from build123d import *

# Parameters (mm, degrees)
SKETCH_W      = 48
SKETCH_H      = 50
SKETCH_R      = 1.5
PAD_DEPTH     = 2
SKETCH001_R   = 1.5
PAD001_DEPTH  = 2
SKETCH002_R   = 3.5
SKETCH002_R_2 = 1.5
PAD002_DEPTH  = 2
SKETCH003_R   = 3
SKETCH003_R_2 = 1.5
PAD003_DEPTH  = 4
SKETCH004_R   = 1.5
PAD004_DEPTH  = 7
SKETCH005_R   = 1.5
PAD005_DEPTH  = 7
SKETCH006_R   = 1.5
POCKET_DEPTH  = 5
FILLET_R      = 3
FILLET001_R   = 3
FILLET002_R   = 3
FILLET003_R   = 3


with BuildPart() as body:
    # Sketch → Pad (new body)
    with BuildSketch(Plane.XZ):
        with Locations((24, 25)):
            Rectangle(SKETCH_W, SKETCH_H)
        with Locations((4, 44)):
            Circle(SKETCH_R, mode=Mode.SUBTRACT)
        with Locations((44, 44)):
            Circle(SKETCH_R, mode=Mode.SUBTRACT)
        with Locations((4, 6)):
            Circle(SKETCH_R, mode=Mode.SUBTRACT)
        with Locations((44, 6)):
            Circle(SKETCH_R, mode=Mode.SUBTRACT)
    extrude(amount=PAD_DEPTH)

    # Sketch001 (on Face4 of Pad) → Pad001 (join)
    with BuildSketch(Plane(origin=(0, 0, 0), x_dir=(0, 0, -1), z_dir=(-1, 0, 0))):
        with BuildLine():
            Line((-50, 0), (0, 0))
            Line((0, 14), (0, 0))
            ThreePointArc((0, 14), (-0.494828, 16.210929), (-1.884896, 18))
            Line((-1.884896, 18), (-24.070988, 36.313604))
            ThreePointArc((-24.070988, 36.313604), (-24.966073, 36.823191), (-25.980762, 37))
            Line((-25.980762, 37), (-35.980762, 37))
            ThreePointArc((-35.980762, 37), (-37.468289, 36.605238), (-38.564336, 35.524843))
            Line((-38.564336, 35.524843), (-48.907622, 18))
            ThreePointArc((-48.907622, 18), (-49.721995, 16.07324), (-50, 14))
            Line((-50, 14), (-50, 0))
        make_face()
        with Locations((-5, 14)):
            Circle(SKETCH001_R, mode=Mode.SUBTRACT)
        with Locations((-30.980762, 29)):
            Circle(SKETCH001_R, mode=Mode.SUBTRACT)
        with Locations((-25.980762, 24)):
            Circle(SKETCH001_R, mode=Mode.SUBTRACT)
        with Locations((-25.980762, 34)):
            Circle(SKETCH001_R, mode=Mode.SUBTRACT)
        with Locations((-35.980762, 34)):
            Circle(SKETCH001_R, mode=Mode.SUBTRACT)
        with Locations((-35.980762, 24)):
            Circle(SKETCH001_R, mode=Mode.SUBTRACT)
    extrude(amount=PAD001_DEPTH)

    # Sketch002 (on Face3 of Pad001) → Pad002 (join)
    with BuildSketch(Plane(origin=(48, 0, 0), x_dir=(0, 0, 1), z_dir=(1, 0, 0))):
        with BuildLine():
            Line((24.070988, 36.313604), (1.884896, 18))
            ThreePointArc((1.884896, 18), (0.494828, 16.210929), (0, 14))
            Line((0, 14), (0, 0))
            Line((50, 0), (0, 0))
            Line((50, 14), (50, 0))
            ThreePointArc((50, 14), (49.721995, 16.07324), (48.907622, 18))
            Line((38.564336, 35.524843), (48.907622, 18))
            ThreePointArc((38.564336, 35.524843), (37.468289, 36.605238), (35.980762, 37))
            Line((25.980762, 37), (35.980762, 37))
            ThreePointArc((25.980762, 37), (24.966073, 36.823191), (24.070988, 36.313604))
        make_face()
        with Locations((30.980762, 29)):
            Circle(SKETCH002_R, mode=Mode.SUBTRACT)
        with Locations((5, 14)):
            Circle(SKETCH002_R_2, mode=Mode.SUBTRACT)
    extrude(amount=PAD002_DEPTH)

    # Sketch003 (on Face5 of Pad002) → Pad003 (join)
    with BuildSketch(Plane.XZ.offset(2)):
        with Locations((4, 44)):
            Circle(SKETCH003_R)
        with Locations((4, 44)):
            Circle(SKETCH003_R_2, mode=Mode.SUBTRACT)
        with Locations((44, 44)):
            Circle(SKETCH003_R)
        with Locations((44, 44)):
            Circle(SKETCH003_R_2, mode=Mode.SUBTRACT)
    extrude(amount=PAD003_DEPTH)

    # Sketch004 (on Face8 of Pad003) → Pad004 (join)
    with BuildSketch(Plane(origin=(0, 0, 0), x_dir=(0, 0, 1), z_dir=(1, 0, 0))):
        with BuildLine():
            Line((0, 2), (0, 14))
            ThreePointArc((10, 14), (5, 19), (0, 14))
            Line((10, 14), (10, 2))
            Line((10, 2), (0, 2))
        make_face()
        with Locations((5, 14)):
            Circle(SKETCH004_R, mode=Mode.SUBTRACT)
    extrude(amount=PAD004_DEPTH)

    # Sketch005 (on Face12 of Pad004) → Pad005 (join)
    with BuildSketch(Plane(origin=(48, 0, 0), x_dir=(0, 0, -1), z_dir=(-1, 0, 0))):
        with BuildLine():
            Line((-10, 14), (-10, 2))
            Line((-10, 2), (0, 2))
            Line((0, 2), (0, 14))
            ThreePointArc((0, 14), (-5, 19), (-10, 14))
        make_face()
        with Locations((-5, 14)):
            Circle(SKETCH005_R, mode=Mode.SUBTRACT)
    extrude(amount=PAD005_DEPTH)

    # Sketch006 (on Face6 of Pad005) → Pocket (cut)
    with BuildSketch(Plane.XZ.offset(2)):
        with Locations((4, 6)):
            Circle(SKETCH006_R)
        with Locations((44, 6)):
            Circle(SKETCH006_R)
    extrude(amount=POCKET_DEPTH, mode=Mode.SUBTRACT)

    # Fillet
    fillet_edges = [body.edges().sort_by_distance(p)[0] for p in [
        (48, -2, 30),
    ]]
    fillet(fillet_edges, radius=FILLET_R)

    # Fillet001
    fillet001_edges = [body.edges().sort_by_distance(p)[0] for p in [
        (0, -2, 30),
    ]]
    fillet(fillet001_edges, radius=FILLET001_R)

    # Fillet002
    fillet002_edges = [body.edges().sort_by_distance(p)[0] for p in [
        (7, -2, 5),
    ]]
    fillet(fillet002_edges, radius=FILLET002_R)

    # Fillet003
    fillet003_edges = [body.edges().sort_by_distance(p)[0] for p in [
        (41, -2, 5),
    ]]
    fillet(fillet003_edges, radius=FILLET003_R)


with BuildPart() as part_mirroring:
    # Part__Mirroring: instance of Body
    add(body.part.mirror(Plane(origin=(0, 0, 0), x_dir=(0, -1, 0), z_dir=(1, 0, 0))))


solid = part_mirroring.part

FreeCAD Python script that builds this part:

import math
import FreeCAD as App
import Part
import Sketcher

V = App.Vector
Q = App.Units.Quantity


def edges_at(feature, points):
    """Names of the edges that pass closest to the given points."""
    edges = feature.Shape.Edges
    near = lambda p: min(range(len(edges)), key=lambda i: edges[i].distToShape(Part.Vertex(*p))[0])
    return sorted({f"Edge{near(p) + 1}" for p in points})


def add_polygon(sketch, points):
    """Adds a closed chain of lines whose ends are joined by coincident constraints."""
    first, n = sketch.GeometryCount, len(points)
    for a, b in zip(points, points[1:] + points[:1]):
        sketch.addGeometry(Part.LineSegment(App.Vector(*a, 0), App.Vector(*b, 0)), False)
    for i in range(n):
        sketch.addConstraint(Sketcher.Constraint("Coincident", first + i, 2, first + (i + 1) % n, 1))

doc = App.newDocument("Part")
params = doc.addObject("Spreadsheet::Sheet", "Params")
for row, (alias, value) in enumerate([
    ("sketch1_diameter", "3 mm"),
    ("sketch1_width", "48 mm"),
    ("sketch1_height", "50 mm"),
    ("pad1_length", "2 mm"),
    ("sketch2_diameter", "3 mm"),
    ("sketch2_radius", "2.999999 mm"),
    ("sketch2_width", "14 mm"),
    ("sketch2_height", "50 mm"),
    ("sketch2_height2", "10 mm"),
    ("pad2_length", "2 mm"),
    ("sketch3_diameter", "3 mm"),
    ("sketch3_diameter2", "7 mm"),
    ("sketch3_radius", "2.999999 mm"),
    ("sketch3_width", "14 mm"),
    ("sketch3_height", "50 mm"),
    ("pad3_length", "2 mm"),
    ("sketch4_diameter", "6 mm"),
    ("sketch4_diameter2", "3 mm"),
    ("pad4_length", "4 mm"),
    ("sketch5_diameter", "3 mm"),
    ("sketch5_radius", "5 mm"),
    ("sketch5_width", "12 mm"),
    ("pad5_length", "7 mm"),
    ("sketch6_diameter", "3 mm"),
    ("sketch6_radius", "5 mm"),
    ("sketch6_width", "12 mm"),
    ("pad6_length", "7 mm"),
    ("sketch7_diameter", "3 mm"),
    ("pocket1_length", "5 mm"),
    ("fillet_radius", "3 mm"),
    ("fillet2_radius", "3 mm"),
    ("fillet3_radius", "3 mm"),
    ("fillet4_radius", "3 mm"),
], start=1):
    params.set(f"A{row}", alias)
    params.set(f"B{row}", "=" + value)
    params.setAlias(f"B{row}", alias)

body = doc.addObject("PartDesign::Body", "Body")

# Sketch on XZ plane
sketch1 = body.newObject("Sketcher::SketchObject", "Sketch")
sketch1.AttachmentSupport = (doc.getObject("XZ_Plane"), [""])
sketch1.MapMode = "FlatFace"
add_polygon(sketch1, [(0, 50), (0, 0), (48, 0), (48, 50)])  # lines 0-3
sketch1.addGeometry(Part.Circle(V(4, 6, 0), V(0, 0, 1), 1.5), False)  # 4
sketch1.addGeometry(Part.Circle(V(44, 6, 0), V(0, 0, 1), 1.5), False)  # 5
sketch1.addGeometry(Part.Circle(V(4, 44, 0), V(0, 0, 1), 1.5), False)  # 6
sketch1.addGeometry(Part.Circle(V(44, 44, 0), V(0, 0, 1), 1.5), False)  # 7
sketch1.addConstraint(Sketcher.Constraint("Vertical", 0))
sketch1.addConstraint(Sketcher.Constraint("Horizontal", 1))
sketch1.addConstraint(Sketcher.Constraint("Vertical", 2))
sketch1.addConstraint(Sketcher.Constraint("Horizontal", 3))
sketch1.addConstraint(Sketcher.Constraint("Coincident", 0, 2, -1, 1))
sketch1.addConstraint(Sketcher.Constraint("Equal", 4, 5))
sketch1.addConstraint(Sketcher.Constraint("Equal", 5, 6))
sketch1.addConstraint(Sketcher.Constraint("Equal", 6, 7))
sketch1.addConstraint(Sketcher.Constraint("Horizontal", 4, 3, 5, 3))
sketch1.addConstraint(Sketcher.Constraint("Horizontal", 6, 3, 7, 3))
sketch1.addConstraint(Sketcher.Constraint("Vertical", 4, 3, 6, 3))
sketch1.addConstraint(Sketcher.Constraint("Vertical", 5, 3, 7, 3))
sketch1.addConstraint(Sketcher.Constraint("Diameter", 4, Q("3 mm")))
sketch1.addConstraint(Sketcher.Constraint("DistanceX", 1, 1, 1, 2, Q("48 mm")))
sketch1.addConstraint(Sketcher.Constraint("DistanceY", 0, 2, 0, 1, Q("50 mm")))
sketch1.addConstraint(Sketcher.Constraint("DistanceX", -1, 1, 4, 3, Q("4 mm")))
sketch1.addConstraint(Sketcher.Constraint("DistanceY", -1, 1, 4, 3, Q("6 mm")))
sketch1.addConstraint(Sketcher.Constraint("DistanceX", -1, 1, 5, 3, Q("44 mm")))
sketch1.addConstraint(Sketcher.Constraint("DistanceY", -1, 1, 6, 3, Q("44 mm")))
sketch1.setExpression("Constraints[16]", "Params.sketch1_diameter")
sketch1.setExpression("Constraints[17]", "Params.sketch1_width")
sketch1.setExpression("Constraints[18]", "Params.sketch1_height")
pad1 = body.newObject("PartDesign::Pad", "Pad")
pad1.Profile = sketch1
pad1.setExpression("Length", "Params.pad1_length")

# Sketch on YZ plane
sketch2 = body.newObject("Sketcher::SketchObject", "Sketch001")
sketch2.AttachmentSupport = (doc.getObject("YZ_Plane"), [""])
sketch2.MapMode = "FlatFace"
sketch2.addGeometry(Part.LineSegment(V(0, 50, 0), V(0, 0, 0)), False)
sketch2.addGeometry(Part.LineSegment(V(0, 0, 0), V(-14, 0, 0)), False)
sketch2.addGeometry(Part.ArcOfCircle(Part.Circle(V(-14, 5.2, 0), V(0, 0, 1), 5.2), math.radians(-140), math.radians(-90)), False)
sketch2.addGeometry(Part.LineSegment(V(-18, 1.9, 0), V(-36.3, 24.1, 0)), False)
sketch2.addGeometry(Part.ArcOfCircle(Part.Circle(V(-34, 26, 0), V(0, 0, 1), 3), math.radians(180), math.radians(220)), False)
sketch2.addGeometry(Part.LineSegment(V(-37, 26, 0), V(-37, 36, 0)), False)
sketch2.addGeometry(Part.ArcOfCircle(Part.Circle(V(-34, 36, 0), V(0, 0, 1), 3), math.radians(121), math.radians(180)), False)
sketch2.addGeometry(Part.LineSegment(V(-35.5, 38.6, 0), V(-18, 48.9, 0)), False)
sketch2.addGeometry(Part.ArcOfCircle(Part.Circle(V(-14, 42.1, 0), V(0, 0, 1), 7.9), math.radians(90), math.radians(121)), False)
sketch2.addGeometry(Part.LineSegment(V(-14, 50, 0), V(0, 50, 0)), False)
sketch2.addGeometry(Part.Circle(V(-14, 5, 0), V(0, 0, 1), 1.5), False)
sketch2.addGeometry(Part.Circle(V(-24, 36, 0), V(0, 0, 1), 1.5), False)
sketch2.addGeometry(Part.Circle(V(-29, 31, 0), V(0, 0, 1), 1.5), False)
sketch2.addGeometry(Part.Circle(V(-24, 26, 0), V(0, 0, 1), 1.5), False)
sketch2.addGeometry(Part.Circle(V(-34, 36, 0), V(0, 0, 1), 1.5), False)
sketch2.addGeometry(Part.Circle(V(-34, 26, 0), V(0, 0, 1), 1.5), False)
sketch2.addConstraint(Sketcher.Constraint("Coincident", 0, 2, 1, 1))
sketch2.addConstraint(Sketcher.Constraint("Tangent", 1, 2, 2, 2))
sketch2.addConstraint(Sketcher.Constraint("Tangent", 2, 1, 3, 1))
sketch2.addConstraint(Sketcher.Constraint("Tangent", 3, 2, 4, 2))
sketch2.addConstraint(Sketcher.Constraint("Tangent", 4, 1, 5, 1))
sketch2.addConstraint(Sketcher.Constraint("Tangent", 5, 2, 6, 2))
sketch2.addConstraint(Sketcher.Constraint("Tangent", 6, 1, 7, 1))
sketch2.addConstraint(Sketcher.Constraint("Tangent", 7, 2, 8, 2))
sketch2.addConstraint(Sketcher.Constraint("Tangent", 8, 1, 9, 1))
sketch2.addConstraint(Sketcher.Constraint("Coincident", 9, 2, 0, 1))
sketch2.addConstraint(Sketcher.Constraint("Vertical", 0))
sketch2.addConstraint(Sketcher.Constraint("Horizontal", 1))
sketch2.addConstraint(Sketcher.Constraint("Vertical", 5))
sketch2.addConstraint(Sketcher.Constraint("Horizontal", 9))
sketch2.addConstraint(Sketcher.Constraint("Coincident", 0, 2, -1, 1))
sketch2.addConstraint(Sketcher.Constraint("Coincident", 14, 3, 6, 3))
sketch2.addConstraint(Sketcher.Constraint("Coincident", 15, 3, 4, 3))
sketch2.addConstraint(Sketcher.Constraint("Equal", 4, 6))
sketch2.addConstraint(Sketcher.Constraint("Equal", 10, 11))
sketch2.addConstraint(Sketcher.Constraint("Equal", 11, 12))
sketch2.addConstraint(Sketcher.Constraint("Equal", 12, 13))
sketch2.addConstraint(Sketcher.Constraint("Equal", 13, 14))
sketch2.addConstraint(Sketcher.Constraint("Equal", 14, 15))
sketch2.addConstraint(Sketcher.Constraint("Horizontal", 6, 3, 11, 3))
sketch2.addConstraint(Sketcher.Constraint("Horizontal", 4, 3, 13, 3))
sketch2.addConstraint(Sketcher.Constraint("Vertical", 2, 3, 8, 3))
sketch2.addConstraint(Sketcher.Constraint("Vertical", 8, 3, 10, 3))
sketch2.addConstraint(Sketcher.Constraint("Vertical", 11, 3, 13, 3))
sketch2.addConstraint(Sketcher.Constraint("Vertical", 2, 1, 7, 2))
sketch2.addConstraint(Sketcher.Constraint("Diameter", 10, Q("3 mm")))
sketch2.addConstraint(Sketcher.Constraint("Radius", 6, Q("2.999999 mm")))
sketch2.addConstraint(Sketcher.Constraint("DistanceX", 1, 2, 1, 1, Q("14 mm")))
sketch2.addConstraint(Sketcher.Constraint("DistanceY", 0, 2, 0, 1, Q("50 mm")))
sketch2.addConstraint(Sketcher.Constraint("DistanceY", 5, 1, 5, 2, Q("10 mm")))
sketch2.addConstraint(Sketcher.Constraint("DistanceX", 6, 3, -1, 1, Q("34.000001 mm")))
sketch2.addConstraint(Sketcher.Constraint("DistanceY", -1, 1, 10, 3, Q("5 mm")))
sketch2.addConstraint(Sketcher.Constraint("DistanceX", 11, 3, -1, 1, Q("24 mm")))
sketch2.addConstraint(Sketcher.Constraint("DistanceX", 12, 3, -1, 1, Q("29 mm")))
sketch2.addConstraint(Sketcher.Constraint("DistanceX", 2, 1, -1, 1, Q("18 mm")))
sketch2.addConstraint(Sketcher.Constraint("DistanceY", 12, 3, 11, 3, Q("5 mm")))
sketch2.addConstraint(Sketcher.Constraint("Radius", 8, Q("7.86966 mm")))
sketch2.setExpression("Constraints[29]", "Params.sketch2_diameter")
sketch2.setExpression("Constraints[30]", "Params.sketch2_radius")
sketch2.setExpression("Constraints[31]", "Params.sketch2_width")
sketch2.setExpression("Constraints[32]", "Params.sketch2_height")
sketch2.setExpression("Constraints[33]", "Params.sketch2_height2")
pad2 = body.newObject("PartDesign::Pad", "Pad001")
pad2.Profile = sketch2
pad2.setExpression("Length", "Params.pad2_length")
pad2.Reversed = True

# Sketch on YZ plane
sketch3 = body.newObject("Sketcher::SketchObject", "Sketch002")
sketch3.AttachmentSupport = (doc.getObject("YZ_Plane"), [""])
sketch3.MapMode = "FlatFace"
sketch3.AttachmentOffset = App.Placement(V(0, 0, 48), App.Rotation())
sketch3.addGeometry(Part.LineSegment(V(-36.3, 24.1, 0), V(-18, 1.9, 0)), False)
sketch3.addGeometry(Part.ArcOfCircle(Part.Circle(V(-14, 5.2, 0), V(0, 0, 1), 5.2), math.radians(-140), math.radians(-90)), False)
sketch3.addGeometry(Part.LineSegment(V(-14, 0, 0), V(0, 0, 0)), False)
sketch3.addGeometry(Part.LineSegment(V(0, 0, 0), V(0, 50, 0)), False)
sketch3.addGeometry(Part.LineSegment(V(0, 50, 0), V(-14, 50, 0)), False)
sketch3.addGeometry(Part.ArcOfCircle(Part.Circle(V(-14, 42.1, 0), V(0, 0, 1), 7.9), math.radians(90), math.radians(121)), False)
sketch3.addGeometry(Part.LineSegment(V(-18, 48.9, 0), V(-35.5, 38.6, 0)), False)
sketch3.addGeometry(Part.ArcOfCircle(Part.Circle(V(-34, 36, 0), V(0, 0, 1), 3), math.radians(121), math.radians(180)), False)
sketch3.addGeometry(Part.LineSegment(V(-37, 36, 0), V(-37, 26, 0)), False)
sketch3.addGeometry(Part.ArcOfCircle(Part.Circle(V(-34, 26, 0), V(0, 0, 1), 3), math.radians(180), math.radians(220)), False)
sketch3.addGeometry(Part.Circle(V(-14, 5, 0), V(0, 0, 1), 1.5), False)
sketch3.addGeometry(Part.Circle(V(-29, 31, 0), V(0, 0, 1), 3.5), False)
sketch3.addConstraint(Sketcher.Constraint("Tangent", 0, 2, 1, 1))
sketch3.addConstraint(Sketcher.Constraint("Tangent", 1, 2, 2, 1))
sketch3.addConstraint(Sketcher.Constraint("Coincident", 2, 2, 3, 1))
sketch3.addConstraint(Sketcher.Constraint("Coincident", 3, 2, 4, 1))
sketch3.addConstraint(Sketcher.Constraint("Tangent", 4, 2, 5, 1))
sketch3.addConstraint(Sketcher.Constraint("Tangent", 5, 2, 6, 1))
sketch3.addConstraint(Sketcher.Constraint("Tangent", 6, 2, 7, 1))
sketch3.addConstraint(Sketcher.Constraint("Tangent", 7, 2, 8, 1))
sketch3.addConstraint(Sketcher.Constraint("Tangent", 8, 2, 9, 1))
sketch3.addConstraint(Sketcher.Constraint("Tangent", 9, 2, 0, 1))
sketch3.addConstraint(Sketcher.Constraint("Horizontal", 2))
sketch3.addConstraint(Sketcher.Constraint("Vertical", 3))
sketch3.addConstraint(Sketcher.Constraint("Horizontal", 4))
sketch3.addConstraint(Sketcher.Constraint("Vertical", 8))
sketch3.addConstraint(Sketcher.Constraint("Coincident", 2, 2, -1, 1))
sketch3.addConstraint(Sketcher.Constraint("Equal", 7, 9))
sketch3.addConstraint(Sketcher.Constraint("Vertical", 1, 3, 5, 3))
sketch3.addConstraint(Sketcher.Constraint("Vertical", 5, 3, 10, 3))
sketch3.addConstraint(Sketcher.Constraint("Vertical", 0, 2, 5, 2))
sketch3.addConstraint(Sketcher.Constraint("Diameter", 10, Q("3 mm")))
sketch3.addConstraint(Sketcher.Constraint("Diameter", 11, Q("7 mm")))
sketch3.addConstraint(Sketcher.Constraint("Radius", 7, Q("2.999999 mm")))
sketch3.addConstraint(Sketcher.Constraint("DistanceX", 2, 1, 2, 2, Q("14 mm")))
sketch3.addConstraint(Sketcher.Constraint("DistanceY", 3, 1, 3, 2, Q("50 mm")))
sketch3.addConstraint(Sketcher.Constraint("DistanceY", 8, 2, 8, 1, Q("10 mm")))
sketch3.addConstraint(Sketcher.Constraint("DistanceX", 7, 3, -1, 1, Q("34.000001 mm")))
sketch3.addConstraint(Sketcher.Constraint("DistanceY", -1, 1, 10, 3, Q("5 mm")))
sketch3.addConstraint(Sketcher.Constraint("DistanceX", 11, 3, -1, 1, Q("29 mm")))
sketch3.addConstraint(Sketcher.Constraint("DistanceX", 0, 2, -1, 1, Q("18 mm")))
sketch3.addConstraint(Sketcher.Constraint("DistanceY", 11, 3, 7, 3, Q("5.000001 mm")))
sketch3.addConstraint(Sketcher.Constraint("Radius", 5, Q("7.86966 mm")))
sketch3.setExpression("Constraints[19]", "Params.sketch3_diameter")
sketch3.setExpression("Constraints[20]", "Params.sketch3_diameter2")
sketch3.setExpression("Constraints[21]", "Params.sketch3_radius")
sketch3.setExpression("Constraints[22]", "Params.sketch3_width")
sketch3.setExpression("Constraints[23]", "Params.sketch3_height")
pad3 = body.newObject("PartDesign::Pad", "Pad002")
pad3.Profile = sketch3
pad3.setExpression("Length", "Params.pad3_length")

# Sketch on XZ plane
sketch4 = body.newObject("Sketcher::SketchObject", "Sketch003")
sketch4.AttachmentSupport = (doc.getObject("XZ_Plane"), [""])
sketch4.MapMode = "FlatFace"
sketch4.AttachmentOffset = App.Placement(V(0, 0, 2), App.Rotation())
sketch4.addGeometry(Part.Circle(V(4, 44, 0), V(0, 0, 1), 3), False)
sketch4.addGeometry(Part.Circle(V(4, 44, 0), V(0, 0, 1), 1.5), False)
sketch4.addGeometry(Part.Circle(V(44, 44, 0), V(0, 0, 1), 3), False)
sketch4.addGeometry(Part.Circle(V(44, 44, 0), V(0, 0, 1), 1.5), False)
sketch4.addConstraint(Sketcher.Constraint("Coincident", 1, 3, 0, 3))
sketch4.addConstraint(Sketcher.Constraint("Coincident", 3, 3, 2, 3))
sketch4.addConstraint(Sketcher.Constraint("Equal", 0, 2))
sketch4.addConstraint(Sketcher.Constraint("Equal", 1, 3))
sketch4.addConstraint(Sketcher.Constraint("Horizontal", 1, 3, 2, 3))
sketch4.addConstraint(Sketcher.Constraint("Diameter", 0, Q("6 mm")))
sketch4.addConstraint(Sketcher.Constraint("Diameter", 1, Q("3 mm")))
sketch4.addConstraint(Sketcher.Constraint("DistanceX", -1, 1, 0, 3, Q("4 mm")))
sketch4.addConstraint(Sketcher.Constraint("DistanceY", -1, 1, 0, 3, Q("44 mm")))
sketch4.addConstraint(Sketcher.Constraint("DistanceX", -1, 1, 2, 3, Q("44 mm")))
sketch4.setExpression("Constraints[5]", "Params.sketch4_diameter")
sketch4.setExpression("Constraints[6]", "Params.sketch4_diameter2")
pad4 = body.newObject("PartDesign::Pad", "Pad003")
pad4.Profile = sketch4
pad4.setExpression("Length", "Params.pad4_length")

# Sketch on YZ plane
sketch5 = body.newObject("Sketcher::SketchObject", "Sketch004")
sketch5.AttachmentSupport = (doc.getObject("YZ_Plane"), [""])
sketch5.MapMode = "FlatFace"
sketch5.addGeometry(Part.LineSegment(V(-14, 0, 0), V(-2, 0, 0)), False)
sketch5.addGeometry(Part.LineSegment(V(-2, 0, 0), V(-2, 10, 0)), False)
sketch5.addGeometry(Part.LineSegment(V(-2, 10, 0), V(-14, 10, 0)), False)
sketch5.addGeometry(Part.ArcOfCircle(Part.Circle(V(-14, 5, 0), V(0, 0, 1), 5), math.radians(90), math.radians(270)), False)
sketch5.addGeometry(Part.Circle(V(-14, 5, 0), V(0, 0, 1), 1.5), False)
sketch5.addConstraint(Sketcher.Constraint("Coincident", 0, 2, 1, 1))
sketch5.addConstraint(Sketcher.Constraint("Coincident", 1, 2, 2, 1))
sketch5.addConstraint(Sketcher.Constraint("Tangent", 2, 2, 3, 1))
sketch5.addConstraint(Sketcher.Constraint("Tangent", 3, 2, 0, 1))
sketch5.addConstraint(Sketcher.Constraint("Horizontal", 0))
sketch5.addConstraint(Sketcher.Constraint("Vertical", 1))
sketch5.addConstraint(Sketcher.Constraint("Horizontal", 2))
sketch5.addConstraint(Sketcher.Constraint("Coincident", 4, 3, 3, 3))
sketch5.addConstraint(Sketcher.Constraint("PointOnObject", 0, 2, -1))
sketch5.addConstraint(Sketcher.Constraint("Diameter", 4, Q("3 mm")))
sketch5.addConstraint(Sketcher.Constraint("Radius", 3, Q("5 mm")))
sketch5.addConstraint(Sketcher.Constraint("DistanceX", 0, 1, 0, 2, Q("12 mm")))
sketch5.addConstraint(Sketcher.Constraint("DistanceX", 3, 3, -1, 1, Q("14 mm")))
sketch5.setExpression("Constraints[9]", "Params.sketch5_diameter")
sketch5.setExpression("Constraints[10]", "Params.sketch5_radius")
sketch5.setExpression("Constraints[11]", "Params.sketch5_width")
pad5 = body.newObject("PartDesign::Pad", "Pad004")
pad5.Profile = sketch5
pad5.setExpression("Length", "Params.pad5_length")

# Sketch on YZ plane
sketch6 = body.newObject("Sketcher::SketchObject", "Sketch005")
sketch6.AttachmentSupport = (doc.getObject("YZ_Plane"), [""])
sketch6.MapMode = "FlatFace"
sketch6.AttachmentOffset = App.Placement(V(0, 0, 48), App.Rotation())
sketch6.addGeometry(Part.LineSegment(V(-14, 10, 0), V(-2, 10, 0)), False)
sketch6.addGeometry(Part.LineSegment(V(-2, 10, 0), V(-2, 0, 0)), False)
sketch6.addGeometry(Part.LineSegment(V(-2, 0, 0), V(-14, 0, 0)), False)
sketch6.addGeometry(Part.ArcOfCircle(Part.Circle(V(-14, 5, 0), V(0, 0, 1), 5), math.radians(90), math.radians(270)), False)
sketch6.addGeometry(Part.Circle(V(-14, 5, 0), V(0, 0, 1), 1.5), False)
sketch6.addConstraint(Sketcher.Constraint("Coincident", 0, 2, 1, 1))
sketch6.addConstraint(Sketcher.Constraint("Coincident", 1, 2, 2, 1))
sketch6.addConstraint(Sketcher.Constraint("Tangent", 2, 2, 3, 2))
sketch6.addConstraint(Sketcher.Constraint("Tangent", 3, 1, 0, 1))
sketch6.addConstraint(Sketcher.Constraint("Horizontal", 0))
sketch6.addConstraint(Sketcher.Constraint("Vertical", 1))
sketch6.addConstraint(Sketcher.Constraint("Horizontal", 2))
sketch6.addConstraint(Sketcher.Constraint("Coincident", 4, 3, 3, 3))
sketch6.addConstraint(Sketcher.Constraint("PointOnObject", 1, 2, -1))
sketch6.addConstraint(Sketcher.Constraint("Diameter", 4, Q("3 mm")))
sketch6.addConstraint(Sketcher.Constraint("Radius", 3, Q("5 mm")))
sketch6.addConstraint(Sketcher.Constraint("DistanceX", 0, 1, 0, 2, Q("12 mm")))
sketch6.addConstraint(Sketcher.Constraint("DistanceX", 3, 3, -1, 1, Q("14 mm")))
sketch6.setExpression("Constraints[9]", "Params.sketch6_diameter")
sketch6.setExpression("Constraints[10]", "Params.sketch6_radius")
sketch6.setExpression("Constraints[11]", "Params.sketch6_width")
pad6 = body.newObject("PartDesign::Pad", "Pad005")
pad6.Profile = sketch6
pad6.setExpression("Length", "Params.pad6_length")
pad6.Reversed = True

# Sketch on XZ plane
sketch7 = body.newObject("Sketcher::SketchObject", "Sketch006")
sketch7.AttachmentSupport = (doc.getObject("XZ_Plane"), [""])
sketch7.MapMode = "FlatFace"
sketch7.AttachmentOffset = App.Placement(V(0, 0, 2), App.Rotation())
sketch7.addGeometry(Part.Circle(V(4, 6, 0), V(0, 0, 1), 1.5), False)
sketch7.addGeometry(Part.Circle(V(44, 6, 0), V(0, 0, 1), 1.5), False)
sketch7.addConstraint(Sketcher.Constraint("Equal", 0, 1))
sketch7.addConstraint(Sketcher.Constraint("Horizontal", 0, 3, 1, 3))
sketch7.addConstraint(Sketcher.Constraint("Diameter", 0, Q("3 mm")))
sketch7.addConstraint(Sketcher.Constraint("DistanceX", -1, 1, 0, 3, Q("4 mm")))
sketch7.addConstraint(Sketcher.Constraint("DistanceY", -1, 1, 0, 3, Q("6 mm")))
sketch7.addConstraint(Sketcher.Constraint("DistanceX", -1, 1, 1, 3, Q("44 mm")))
sketch7.setExpression("Constraints[2]", "Params.sketch7_diameter")
pocket1 = body.newObject("PartDesign::Pocket", "Pocket")
pocket1.Profile = sketch7
pocket1.setExpression("Length", "Params.pocket1_length")
pocket1.Reversed = True
doc.recompute()

fillet = body.newObject("PartDesign::Fillet", "Fillet")
fillet.Base = (pocket1, edges_at(pocket1, [(48, -2, 30)]))
fillet.setExpression("Radius", "Params.fillet_radius")
doc.recompute()

fillet2 = body.newObject("PartDesign::Fillet", "Fillet001")
fillet2.Base = (fillet, edges_at(fillet, [(0, -2, 30)]))
fillet2.setExpression("Radius", "Params.fillet2_radius")
doc.recompute()

fillet3 = body.newObject("PartDesign::Fillet", "Fillet002")
fillet3.Base = (fillet2, edges_at(fillet2, [(7, -2, 5)]))
fillet3.setExpression("Radius", "Params.fillet3_radius")
doc.recompute()

fillet4 = body.newObject("PartDesign::Fillet", "Fillet003")
fillet4.Base = (fillet3, edges_at(fillet3, [(41, -2, 5)]))
fillet4.setExpression("Radius", "Params.fillet4_radius")
body2 = doc.addObject("PartDesign::Body", "Body001")
doc.recompute()

mirroring = doc.addObject("Part::Mirroring", "Mirroring")
mirroring.Source = body
mirroring.Base = V(0, 0, 0)
mirroring.Normal = V(1, 0, 0)
body2.BaseFeature = mirroring
doc.recompute()
body.Visibility = False
mirroring.Visibility = False

doc.recompute()
